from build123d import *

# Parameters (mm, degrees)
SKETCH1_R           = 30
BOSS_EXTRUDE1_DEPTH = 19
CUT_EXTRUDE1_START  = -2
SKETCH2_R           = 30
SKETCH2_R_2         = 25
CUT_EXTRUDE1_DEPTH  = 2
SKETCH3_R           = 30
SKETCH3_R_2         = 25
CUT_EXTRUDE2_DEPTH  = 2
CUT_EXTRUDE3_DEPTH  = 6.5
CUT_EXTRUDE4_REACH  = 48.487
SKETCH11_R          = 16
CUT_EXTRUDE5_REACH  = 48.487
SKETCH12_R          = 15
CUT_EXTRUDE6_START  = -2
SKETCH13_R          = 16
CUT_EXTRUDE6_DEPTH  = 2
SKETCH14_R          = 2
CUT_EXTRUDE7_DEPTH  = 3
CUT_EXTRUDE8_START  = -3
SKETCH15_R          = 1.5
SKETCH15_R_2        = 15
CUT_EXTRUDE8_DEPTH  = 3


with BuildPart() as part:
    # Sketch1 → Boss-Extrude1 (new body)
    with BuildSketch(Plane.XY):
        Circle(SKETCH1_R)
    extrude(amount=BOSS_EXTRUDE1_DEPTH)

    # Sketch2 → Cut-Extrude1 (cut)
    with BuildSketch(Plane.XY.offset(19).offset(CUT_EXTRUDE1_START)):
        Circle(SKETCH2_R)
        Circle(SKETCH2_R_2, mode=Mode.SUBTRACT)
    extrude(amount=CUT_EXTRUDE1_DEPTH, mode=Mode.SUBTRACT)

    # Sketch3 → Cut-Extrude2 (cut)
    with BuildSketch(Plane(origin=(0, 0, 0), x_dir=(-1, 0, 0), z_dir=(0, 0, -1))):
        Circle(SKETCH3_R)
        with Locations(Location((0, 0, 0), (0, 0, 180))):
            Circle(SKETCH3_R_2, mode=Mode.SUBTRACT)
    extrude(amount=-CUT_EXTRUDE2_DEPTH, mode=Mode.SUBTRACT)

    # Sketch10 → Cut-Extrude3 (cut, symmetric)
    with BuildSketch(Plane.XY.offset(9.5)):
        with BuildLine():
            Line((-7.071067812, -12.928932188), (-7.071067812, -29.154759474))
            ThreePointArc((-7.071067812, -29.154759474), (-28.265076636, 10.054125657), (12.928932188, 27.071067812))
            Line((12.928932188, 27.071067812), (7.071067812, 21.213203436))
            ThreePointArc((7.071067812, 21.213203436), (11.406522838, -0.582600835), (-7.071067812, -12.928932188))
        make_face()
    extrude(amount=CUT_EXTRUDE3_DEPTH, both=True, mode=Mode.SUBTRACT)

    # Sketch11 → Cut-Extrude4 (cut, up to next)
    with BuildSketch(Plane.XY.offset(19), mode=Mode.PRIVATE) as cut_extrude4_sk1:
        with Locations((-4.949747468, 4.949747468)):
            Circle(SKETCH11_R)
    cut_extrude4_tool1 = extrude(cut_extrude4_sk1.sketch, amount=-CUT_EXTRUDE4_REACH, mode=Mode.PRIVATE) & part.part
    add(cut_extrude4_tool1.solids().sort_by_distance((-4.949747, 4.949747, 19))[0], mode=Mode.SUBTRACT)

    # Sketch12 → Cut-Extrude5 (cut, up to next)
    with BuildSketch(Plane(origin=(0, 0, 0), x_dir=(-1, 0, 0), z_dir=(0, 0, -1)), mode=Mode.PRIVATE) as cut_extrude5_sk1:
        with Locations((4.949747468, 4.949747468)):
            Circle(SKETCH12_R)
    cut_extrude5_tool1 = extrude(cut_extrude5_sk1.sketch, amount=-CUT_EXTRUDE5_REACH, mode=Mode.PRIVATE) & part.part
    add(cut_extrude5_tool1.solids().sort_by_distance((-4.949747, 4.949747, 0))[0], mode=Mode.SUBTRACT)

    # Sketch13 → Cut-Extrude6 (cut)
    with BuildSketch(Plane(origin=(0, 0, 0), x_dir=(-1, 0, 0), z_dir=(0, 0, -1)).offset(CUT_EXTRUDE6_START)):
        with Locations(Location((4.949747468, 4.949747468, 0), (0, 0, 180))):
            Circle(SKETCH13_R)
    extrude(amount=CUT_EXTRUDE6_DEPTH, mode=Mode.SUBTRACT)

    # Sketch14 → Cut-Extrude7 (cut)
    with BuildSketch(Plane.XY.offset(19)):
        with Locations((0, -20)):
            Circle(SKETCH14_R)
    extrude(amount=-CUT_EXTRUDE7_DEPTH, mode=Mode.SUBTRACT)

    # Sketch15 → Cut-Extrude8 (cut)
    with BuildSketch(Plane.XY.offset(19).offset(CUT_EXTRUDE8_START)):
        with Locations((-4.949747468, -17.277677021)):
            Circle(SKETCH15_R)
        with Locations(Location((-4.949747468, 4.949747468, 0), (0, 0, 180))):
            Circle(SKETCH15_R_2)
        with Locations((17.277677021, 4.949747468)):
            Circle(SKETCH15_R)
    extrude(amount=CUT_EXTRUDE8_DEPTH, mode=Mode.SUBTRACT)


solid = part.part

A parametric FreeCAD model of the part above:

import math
import FreeCAD as App
import Part
import Sketcher
Q = App.Units.Quantity

doc = App.newDocument("Part")
body = doc.addObject("PartDesign::Body", "Body")

# Sketch on XY plane
sketch1 = body.newObject("Sketcher::SketchObject", "Sketch")
sketch1.AttachmentSupport = (doc.getObject("XY_Plane"), [""])
sketch1.MapMode = "FlatFace"
sketch1.addGeometry(Part.Circle(App.Vector(0, 0, 0), App.Vector(0, 0, 1), 30), False)
sketch1.addConstraint(Sketcher.Constraint("Coincident", 0, 3, -1, 1))
sketch1.addConstraint(Sketcher.Constraint("Diameter", 0, Q("60 mm")))
pad1 = body.newObject("PartDesign::Pad", "Pad")
pad1.Profile = sketch1
pad1.Length = 19

# Sketch on XY plane
sketch2 = body.newObject("Sketcher::SketchObject", "Sketch001")
sketch2.AttachmentSupport = (doc.getObject("XY_Plane"), [""])
sketch2.MapMode = "FlatFace"
sketch2.AttachmentOffset = App.Placement(App.Vector(0, 0, 17), App.Rotation())
sketch2.addGeometry(Part.Circle(App.Vector(0, 0, 0), App.Vector(0, 0, 1), 30), False)
sketch2.addGeometry(Part.Circle(App.Vector(0, 0, 0), App.Vector(0, 0, 1), 25), False)
sketch2.addConstraint(Sketcher.Constraint("Coincident", 0, 3, -1, 1))
sketch2.addConstraint(Sketcher.Constraint("Coincident", 1, 3, -1, 1))
sketch2.addConstraint(Sketcher.Constraint("Diameter", 0, Q("60 mm")))
sketch2.addConstraint(Sketcher.Constraint("Diameter", 1, Q("50 mm")))
pocket1 = body.newObject("PartDesign::Pocket", "Pocket")
pocket1.Profile = sketch2
pocket1.Length = 2
pocket1.Reversed = True

# Sketch on XY plane
sketch3 = body.newObject("Sketcher::SketchObject", "Sketch002")
sketch3.AttachmentSupport = (doc.getObject("XY_Plane"), [""])
sketch3.MapMode = "FlatFace"
sketch3.addGeometry(Part.Circle(App.Vector(0, 0, 0), App.Vector(0, 0, 1), 30), False)
sketch3.addGeometry(Part.Circle(App.Vector(0, 0, 0), App.Vector(0, 0, 1), 25), False)
sketch3.addConstraint(Sketcher.Constraint("Coincident", 0, 3, -1, 1))
sketch3.addConstraint(Sketcher.Constraint("Coincident", 1, 3, -1, 1))
sketch3.addConstraint(Sketcher.Constraint("Diameter", 0, Q("60 mm")))
sketch3.addConstraint(Sketcher.Constraint("Diameter", 1, Q("50 mm")))
pocket2 = body.newObject("PartDesign::Pocket", "Pocket001")
pocket2.Profile = sketch3
pocket2.Length = 2
pocket2.Reversed = True

# Sketch on XY plane
sketch4 = body.newObject("Sketcher::SketchObject", "Sketch003")
sketch4.AttachmentSupport = (doc.getObject("XY_Plane"), [""])
sketch4.MapMode = "FlatFace"
sketch4.AttachmentOffset = App.Placement(App.Vector(0, 0, 9.5), App.Rotation())
sketch4.addGeometry(Part.LineSegment(App.Vector(-7, -29, 0), App.Vector(-7, -13, 0)), False)
sketch4.addGeometry(Part.ArcOfCircle(Part.Circle(App.Vector(-7, 7, 0), App.Vector(0, 0, 1), 20), math.radians(-90), math.radians(45)), False)
sketch4.addGeometry(Part.LineSegment(App.Vector(7, 21, 0), App.Vector(13, 27, 0)), False)
sketch4.addGeometry(Part.ArcOfCircle(Part.Circle(App.Vector(0, 0, 0), App.Vector(0, 0, 1), 30), math.radians(64), math.radians(256)), False)
sketch4.addConstraint(Sketcher.Constraint("Coincident", 0, 2, 1, 1))
sketch4.addConstraint(Sketcher.Constraint("Coincident", 1, 2, 2, 1))
sketch4.addConstraint(Sketcher.Constraint("Coincident", 2, 2, 3, 1))
sketch4.addConstraint(Sketcher.Constraint("Coincident", 3, 2, 0, 1))
sketch4.addConstraint(Sketcher.Constraint("Vertical", 0))
sketch4.addConstraint(Sketcher.Constraint("Coincident", 3, 3, -1, 1))
sketch4.addConstraint(Sketcher.Constraint("Vertical", 1, 3, 0, 2))
sketch4.addConstraint(Sketcher.Constraint("Radius", 1, Q("20 mm")))
sketch4.addConstraint(Sketcher.Constraint("Radius", 3, Q("30 mm")))
sketch4.addConstraint(Sketcher.Constraint("Angle", 2, Q("45 deg")))
sketch4.addConstraint(Sketcher.Constraint("DistanceX", 1, 3, 2, 2, Q("20 mm")))
sketch4.addConstraint(Sketcher.Constraint("DistanceY", 1, 3, 2, 2, Q("20 mm")))
sketch4.addConstraint(Sketcher.Constraint("DistanceY", 0, 1, 0, 2, Q("16.225827 mm")))
pocket3 = body.newObject("PartDesign::Pocket", "Pocket002")
pocket3.Profile = sketch4
pocket3.Length = 13
pocket3.Midplane = True

# Sketch on XY plane
sketch5 = body.newObject("Sketcher::SketchObject", "Sketch004")
sketch5.AttachmentSupport = (doc.getObject("XY_Plane"), [""])
sketch5.MapMode = "FlatFace"
sketch5.AttachmentOffset = App.Placement(App.Vector(0, 0, 19), App.Rotation())
sketch5.addGeometry(Part.Circle(App.Vector(-5, 5, 0), App.Vector(0, 0, 1), 16), False)
sketch5.addConstraint(Sketcher.Constraint("Diameter", 0, Q("32 mm")))
sketch5.addConstraint(Sketcher.Constraint("DistanceX", 0, 3, -1, 1, Q("4.949747 mm")))
sketch5.addConstraint(Sketcher.Constraint("DistanceY", -1, 1, 0, 3, Q("4.949747 mm")))
pocket4 = body.newObject("PartDesign::Pocket", "Pocket003")
pocket4.Profile = sketch5
pocket4.Type = "UpToFirst"

# Sketch on XY plane
sketch6 = body.newObject("Sketcher::SketchObject", "Sketch005")
sketch6.AttachmentSupport = (doc.getObject("XY_Plane"), [""])
sketch6.MapMode = "FlatFace"
sketch6.addGeometry(Part.Circle(App.Vector(-5, 5, 0), App.Vector(0, 0, 1), 15), False)
sketch6.addConstraint(Sketcher.Constraint("Diameter", 0, Q("30 mm")))
sketch6.addConstraint(Sketcher.Constraint("DistanceX", 0, 3, -1, 1, Q("4.949747 mm")))
sketch6.addConstraint(Sketcher.Constraint("DistanceY", -1, 1, 0, 3, Q("4.949747 mm")))
pocket5 = body.newObject("PartDesign::Pocket", "Pocket004")
pocket5.Profile = sketch6
pocket5.Type = "UpToFirst"
pocket5.Reversed = True

# Sketch on XY plane
sketch7 = body.newObject("Sketcher::SketchObject", "Sketch006")
sketch7.AttachmentSupport = (doc.getObject("XY_Plane"), [""])
sketch7.MapMode = "FlatFace"
sketch7.AttachmentOffset = App.Placement(App.Vector(0, 0, 2), App.Rotation())
sketch7.addGeometry(Part.Circle(App.Vector(-5, 5, 0), App.Vector(0, 0, 1), 16), False)
sketch7.addConstraint(Sketcher.Constraint("Diameter", 0, Q("32 mm")))
sketch7.addConstraint(Sketcher.Constraint("DistanceX", 0, 3, -1, 1, Q("4.949747 mm")))
sketch7.addConstraint(Sketcher.Constraint("DistanceY", -1, 1, 0, 3, Q("4.949747 mm")))
pocket6 = body.newObject("PartDesign::Pocket", "Pocket005")
pocket6.Profile = sketch7
pocket6.Length = 2

# Sketch on XY plane
sketch8 = body.newObject("Sketcher::SketchObject", "Sketch007")
sketch8.AttachmentSupport = (doc.getObject("XY_Plane"), [""])
sketch8.MapMode = "FlatFace"
sketch8.AttachmentOffset = App.Placement(App.Vector(0, 0, 19), App.Rotation())
sketch8.addGeometry(Part.Circle(App.Vector(0, -20, 0), App.Vector(0, 0, 1), 2), False)
sketch8.addConstraint(Sketcher.Constraint("PointOnObject", 0, 3, -2))
sketch8.addConstraint(Sketcher.Constraint("Diameter", 0, Q("4 mm")))
sketch8.addConstraint(Sketcher.Constraint("DistanceY", 0, 3, -1, 1, Q("20 mm")))
pocket7 = body.newObject("PartDesign::Pocket", "Pocket006")
pocket7.Profile = sketch8
pocket7.Length = 3

# Sketch on XY plane
sketch9 = body.newObject("Sketcher::SketchObject", "Sketch008")
sketch9.AttachmentSupport = (doc.getObject("XY_Plane"), [""])
sketch9.MapMode = "FlatFace"
sketch9.AttachmentOffset = App.Placement(App.Vector(0, 0, 16), App.Rotation())
sketch9.addGeometry(Part.Circle(App.Vector(-4.9, -17.3, 0), App.Vector(0, 0, 1), 1.5), False)
sketch9.addGeometry(Part.Circle(App.Vector(-4.9, 4.9, 0), App.Vector(0, 0, 1), 15), False)
sketch9.addGeometry(Part.Circle(App.Vector(17.3, 4.9, 0), App.Vector(0, 0, 1), 1.5), False)
sketch9.addConstraint(Sketcher.Constraint("Equal", 0, 2))
sketch9.addConstraint(Sketcher.Constraint("Horizontal", 1, 3, 2, 3))
sketch9.addConstraint(Sketcher.Constraint("Vertical", 0, 3, 1, 3))
sketch9.addConstraint(Sketcher.Constraint("Diameter", 0, Q("3 mm")))
sketch9.addConstraint(Sketcher.Constraint("Diameter", 1, Q("30 mm")))
sketch9.addConstraint(Sketcher.Constraint("DistanceX", 0, 3, -1, 1, Q("4.949747 mm")))
sketch9.addConstraint(Sketcher.Constraint("DistanceY", 0, 3, -1, 1, Q("17.277677 mm")))
sketch9.addConstraint(Sketcher.Constraint("DistanceY", -1, 1, 1, 3, Q("4.949747 mm")))
sketch9.addConstraint(Sketcher.Constraint("DistanceX", -1, 1, 2, 3, Q("17.277677 mm")))
pocket8 = body.newObject("PartDesign::Pocket", "Pocket007")
pocket8.Profile = sketch9
pocket8.Length = 3
pocket8.Reversed = True

doc.recompute()
